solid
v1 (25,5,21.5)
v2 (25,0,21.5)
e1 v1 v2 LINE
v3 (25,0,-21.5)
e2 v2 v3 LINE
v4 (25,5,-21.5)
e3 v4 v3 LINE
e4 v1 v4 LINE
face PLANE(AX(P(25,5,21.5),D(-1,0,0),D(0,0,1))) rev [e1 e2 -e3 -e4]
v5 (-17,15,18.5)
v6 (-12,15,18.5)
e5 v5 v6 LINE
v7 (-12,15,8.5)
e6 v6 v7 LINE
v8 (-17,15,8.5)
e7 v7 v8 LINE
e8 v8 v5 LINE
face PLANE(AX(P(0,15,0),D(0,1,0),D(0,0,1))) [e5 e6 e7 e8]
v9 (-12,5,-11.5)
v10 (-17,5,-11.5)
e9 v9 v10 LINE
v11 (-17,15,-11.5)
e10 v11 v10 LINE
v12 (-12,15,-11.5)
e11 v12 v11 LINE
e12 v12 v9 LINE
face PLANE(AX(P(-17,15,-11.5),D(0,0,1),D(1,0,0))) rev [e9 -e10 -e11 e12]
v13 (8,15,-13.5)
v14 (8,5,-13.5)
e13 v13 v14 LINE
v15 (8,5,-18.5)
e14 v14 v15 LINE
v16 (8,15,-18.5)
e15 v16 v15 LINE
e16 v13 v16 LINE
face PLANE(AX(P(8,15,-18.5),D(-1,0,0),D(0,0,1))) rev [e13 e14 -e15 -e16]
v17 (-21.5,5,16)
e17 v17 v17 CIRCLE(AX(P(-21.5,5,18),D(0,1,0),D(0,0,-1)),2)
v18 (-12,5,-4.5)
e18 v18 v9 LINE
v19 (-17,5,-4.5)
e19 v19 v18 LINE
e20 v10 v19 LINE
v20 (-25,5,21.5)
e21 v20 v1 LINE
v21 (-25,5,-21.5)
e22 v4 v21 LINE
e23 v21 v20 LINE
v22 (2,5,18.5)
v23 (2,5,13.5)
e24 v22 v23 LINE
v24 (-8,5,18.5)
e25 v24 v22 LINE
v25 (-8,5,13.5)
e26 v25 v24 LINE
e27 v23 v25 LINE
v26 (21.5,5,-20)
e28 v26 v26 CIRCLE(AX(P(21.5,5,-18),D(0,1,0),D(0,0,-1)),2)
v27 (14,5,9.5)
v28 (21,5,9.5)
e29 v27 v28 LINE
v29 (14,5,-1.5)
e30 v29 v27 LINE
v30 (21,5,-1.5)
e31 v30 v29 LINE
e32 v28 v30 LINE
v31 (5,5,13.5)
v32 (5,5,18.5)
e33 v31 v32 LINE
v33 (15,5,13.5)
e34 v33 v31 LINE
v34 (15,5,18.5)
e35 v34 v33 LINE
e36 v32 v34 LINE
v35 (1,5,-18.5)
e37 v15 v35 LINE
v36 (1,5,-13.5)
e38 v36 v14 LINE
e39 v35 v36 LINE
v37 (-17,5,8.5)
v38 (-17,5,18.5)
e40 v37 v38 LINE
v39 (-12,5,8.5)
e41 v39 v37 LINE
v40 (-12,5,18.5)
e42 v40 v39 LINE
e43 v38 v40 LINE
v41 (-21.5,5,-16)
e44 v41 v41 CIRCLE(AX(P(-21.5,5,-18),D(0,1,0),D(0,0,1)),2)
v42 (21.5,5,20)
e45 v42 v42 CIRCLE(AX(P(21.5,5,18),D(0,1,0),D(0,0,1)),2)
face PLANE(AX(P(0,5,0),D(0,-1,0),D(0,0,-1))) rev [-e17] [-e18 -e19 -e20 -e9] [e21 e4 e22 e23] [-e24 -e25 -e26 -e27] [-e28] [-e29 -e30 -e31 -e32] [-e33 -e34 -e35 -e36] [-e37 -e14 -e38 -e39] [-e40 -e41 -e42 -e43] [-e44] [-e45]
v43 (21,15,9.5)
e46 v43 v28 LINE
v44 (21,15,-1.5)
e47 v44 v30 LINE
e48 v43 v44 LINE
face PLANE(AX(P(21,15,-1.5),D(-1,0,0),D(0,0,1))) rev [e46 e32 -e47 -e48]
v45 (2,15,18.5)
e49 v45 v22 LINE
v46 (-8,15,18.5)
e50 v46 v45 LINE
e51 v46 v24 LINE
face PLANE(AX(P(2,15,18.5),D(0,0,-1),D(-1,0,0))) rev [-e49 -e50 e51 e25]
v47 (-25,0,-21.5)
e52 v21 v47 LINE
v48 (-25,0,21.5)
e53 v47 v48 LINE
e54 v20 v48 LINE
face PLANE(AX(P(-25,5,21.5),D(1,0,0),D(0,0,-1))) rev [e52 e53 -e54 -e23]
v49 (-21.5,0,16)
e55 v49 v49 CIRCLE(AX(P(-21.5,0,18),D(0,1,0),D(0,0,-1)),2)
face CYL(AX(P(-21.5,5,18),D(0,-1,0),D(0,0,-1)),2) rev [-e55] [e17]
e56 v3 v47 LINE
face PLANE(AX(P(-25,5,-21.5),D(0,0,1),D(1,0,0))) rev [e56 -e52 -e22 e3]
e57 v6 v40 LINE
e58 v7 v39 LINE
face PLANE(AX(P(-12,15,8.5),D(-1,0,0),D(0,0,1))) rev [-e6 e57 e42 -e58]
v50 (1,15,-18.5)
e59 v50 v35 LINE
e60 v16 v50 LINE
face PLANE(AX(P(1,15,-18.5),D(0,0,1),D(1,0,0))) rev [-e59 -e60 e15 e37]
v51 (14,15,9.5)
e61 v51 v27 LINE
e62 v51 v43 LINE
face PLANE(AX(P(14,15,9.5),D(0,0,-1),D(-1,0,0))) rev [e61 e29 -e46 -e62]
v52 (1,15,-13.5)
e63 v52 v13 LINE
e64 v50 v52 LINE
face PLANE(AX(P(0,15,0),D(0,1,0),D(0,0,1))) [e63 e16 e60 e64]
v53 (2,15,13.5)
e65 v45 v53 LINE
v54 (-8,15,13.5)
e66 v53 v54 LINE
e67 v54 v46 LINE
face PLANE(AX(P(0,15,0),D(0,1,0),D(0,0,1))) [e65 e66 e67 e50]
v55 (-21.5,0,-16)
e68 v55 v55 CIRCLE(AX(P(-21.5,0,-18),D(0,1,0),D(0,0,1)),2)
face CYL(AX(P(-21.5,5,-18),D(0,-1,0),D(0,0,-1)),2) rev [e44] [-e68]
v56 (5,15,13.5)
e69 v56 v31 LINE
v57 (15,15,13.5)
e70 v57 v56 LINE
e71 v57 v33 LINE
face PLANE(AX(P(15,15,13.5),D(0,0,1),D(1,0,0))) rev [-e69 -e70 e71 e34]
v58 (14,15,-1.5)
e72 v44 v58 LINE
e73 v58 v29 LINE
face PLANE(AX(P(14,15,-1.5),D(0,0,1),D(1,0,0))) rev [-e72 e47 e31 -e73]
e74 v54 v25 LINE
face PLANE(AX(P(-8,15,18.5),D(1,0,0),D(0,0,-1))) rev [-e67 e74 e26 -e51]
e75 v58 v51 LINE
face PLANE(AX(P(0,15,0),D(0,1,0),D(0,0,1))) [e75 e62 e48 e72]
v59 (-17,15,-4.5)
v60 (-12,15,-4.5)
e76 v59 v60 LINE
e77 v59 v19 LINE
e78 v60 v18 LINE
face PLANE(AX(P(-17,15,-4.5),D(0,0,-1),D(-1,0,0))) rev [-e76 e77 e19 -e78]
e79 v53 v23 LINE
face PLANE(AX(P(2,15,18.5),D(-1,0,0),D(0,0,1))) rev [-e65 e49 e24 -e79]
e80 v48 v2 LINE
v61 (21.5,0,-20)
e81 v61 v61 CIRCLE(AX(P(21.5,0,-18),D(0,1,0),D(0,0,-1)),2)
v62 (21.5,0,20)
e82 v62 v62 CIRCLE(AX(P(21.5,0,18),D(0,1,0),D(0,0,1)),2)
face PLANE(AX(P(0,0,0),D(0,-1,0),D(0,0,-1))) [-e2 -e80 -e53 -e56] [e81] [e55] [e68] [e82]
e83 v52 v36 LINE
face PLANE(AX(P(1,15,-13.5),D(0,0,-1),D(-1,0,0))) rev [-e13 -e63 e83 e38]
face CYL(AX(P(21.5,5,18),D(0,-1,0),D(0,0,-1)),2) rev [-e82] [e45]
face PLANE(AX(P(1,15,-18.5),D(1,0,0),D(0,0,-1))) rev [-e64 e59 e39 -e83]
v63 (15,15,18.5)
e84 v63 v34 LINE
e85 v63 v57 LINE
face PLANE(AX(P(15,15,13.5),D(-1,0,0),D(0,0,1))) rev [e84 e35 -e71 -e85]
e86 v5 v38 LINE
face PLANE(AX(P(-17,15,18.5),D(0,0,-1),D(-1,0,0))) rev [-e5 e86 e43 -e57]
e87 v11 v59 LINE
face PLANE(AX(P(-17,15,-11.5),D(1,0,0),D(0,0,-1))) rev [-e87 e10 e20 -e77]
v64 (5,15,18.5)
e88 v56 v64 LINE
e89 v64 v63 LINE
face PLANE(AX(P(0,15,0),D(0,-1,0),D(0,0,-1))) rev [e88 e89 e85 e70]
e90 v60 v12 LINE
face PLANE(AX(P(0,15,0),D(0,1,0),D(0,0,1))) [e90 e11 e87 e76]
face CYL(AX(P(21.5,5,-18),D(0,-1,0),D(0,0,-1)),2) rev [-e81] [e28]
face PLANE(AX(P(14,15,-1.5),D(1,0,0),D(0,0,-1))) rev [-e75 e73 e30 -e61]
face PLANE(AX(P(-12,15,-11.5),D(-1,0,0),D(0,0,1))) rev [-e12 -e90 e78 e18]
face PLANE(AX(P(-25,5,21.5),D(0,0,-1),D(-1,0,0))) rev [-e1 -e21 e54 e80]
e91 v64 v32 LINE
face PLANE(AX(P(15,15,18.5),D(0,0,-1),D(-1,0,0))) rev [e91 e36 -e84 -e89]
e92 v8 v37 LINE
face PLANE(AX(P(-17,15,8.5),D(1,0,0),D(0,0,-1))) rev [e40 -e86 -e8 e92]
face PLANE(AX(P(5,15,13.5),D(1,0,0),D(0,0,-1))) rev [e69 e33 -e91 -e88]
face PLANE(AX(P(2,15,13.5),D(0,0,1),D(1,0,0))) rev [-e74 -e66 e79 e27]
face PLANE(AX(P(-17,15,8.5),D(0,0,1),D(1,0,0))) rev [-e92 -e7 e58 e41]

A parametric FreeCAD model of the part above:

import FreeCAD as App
import Part
import Sketcher
from FreeCAD import Vector
Q = App.Units.Quantity


def add_polygon(sketch, points):
    """Adds a closed chain of lines whose ends are joined by coincident constraints."""
    first, n = sketch.GeometryCount, len(points)
    for a, b in zip(points, points[1:] + points[:1]):
        sketch.addGeometry(Part.LineSegment(App.Vector(*a, 0), App.Vector(*b, 0)), False)
    for i in range(n):
        sketch.addConstraint(Sketcher.Constraint("Coincident", first + i, 2, first + (i + 1) % n, 1))

doc = App.newDocument("Part")
params = doc.addObject("Spreadsheet::Sheet", "Params")
for row, (alias, value) in enumerate([
    ("sketch1_diameter", "4 mm"),
    ("sketch1_width", "50 mm"),
    ("sketch1_height", "43 mm"),
    ("pad1_length", "5 mm"),
    ("sketch2_width", "5 mm"),
    ("sketch2_width2", "7 mm"),
    ("sketch2_width3", "10 mm"),
    ("sketch2_height", "11 mm"),
    ("pad2_length", "15 mm"),
], start=1):
    params.set(f"A{row}", alias)
    params.set(f"B{row}", "=" + value)
    params.setAlias(f"B{row}", alias)

body = doc.addObject("PartDesign::Body", "Body")

# Sketch on XZ plane
sketch1 = body.newObject("Sketcher::SketchObject", "Sketch")
sketch1.AttachmentSupport = (doc.getObject("XZ_Plane"), [""])
sketch1.MapMode = "FlatFace"
add_polygon(sketch1, [(-25, -21.5), (-25, 21.5), (25, 21.5), (25, -21.5)])  # lines 0-3
sketch1.addGeometry(Part.Circle(Vector(-21.5, 18, 0), Vector(0, 0, 1), 2), False)  # 4
sketch1.addGeometry(Part.Circle(Vector(21.5, 18, 0), Vector(0, 0, 1), 2), False)  # 5
sketch1.addGeometry(Part.Circle(Vector(-21.5, -18, 0), Vector(0, 0, 1), 2), False)  # 6
sketch1.addGeometry(Part.Circle(Vector(21.5, -18, 0), Vector(0, 0, 1), 2), False)  # 7
sketch1.addConstraint([
    Sketcher.Constraint("Vertical", 0),
    Sketcher.Constraint("Horizontal", 1),
    Sketcher.Constraint("Vertical", 2),
    Sketcher.Constraint("Horizontal", 3),
    Sketcher.Constraint("Equal", 4, 5),
    Sketcher.Constraint("Equal", 5, 6),
    Sketcher.Constraint("Equal", 6, 7),
    Sketcher.Constraint("Symmetric", 5, 3, 6, 3, -1, 1),
    Sketcher.Constraint("Symmetric", 4, 3, 7, 3, -1, 1),
    Sketcher.Constraint("Symmetric", 0, 2, 2, 2, -1, 1),
    Sketcher.Constraint("Symmetric", 4, 3, 5, 3, -2),
    Sketcher.Constraint("Diameter", 4, Q("4 mm")),
    Sketcher.Constraint("DistanceX", 1, 1, 1, 2, Q("50 mm")),
    Sketcher.Constraint("DistanceY", 0, 1, 0, 2, Q("43 mm")),
    Sketcher.Constraint("DistanceY", -1, 1, 4, 3, Q("18 mm")),
    Sketcher.Constraint("DistanceX", 4, 3, 5, 3, Q("43 mm")),
])
sketch1.setExpression("Constraints[15]", "Params.sketch1_diameter")
sketch1.setExpression("Constraints[16]", "Params.sketch1_width")
sketch1.setExpression("Constraints[17]", "Params.sketch1_height")
pad1 = body.newObject("PartDesign::Pad", "Pad")
pad1.Profile = sketch1
pad1.setExpression("Length", "Params.pad1_length")
pad1.Reversed = True

# Sketch on XZ plane
sketch2 = body.newObject("Sketcher::SketchObject", "Sketch001")
sketch2.AttachmentSupport = (doc.getObject("XZ_Plane"), [""])
sketch2.MapMode = "FlatFace"
add_polygon(sketch2, [(-17, 8), (-17, 18), (-12, 18), (-12, 8)])  # lines 0-3
add_polygon(sketch2, [(-17, -12), (-17, -4), (-12, -4), (-12, -12)])  # lines 4-7
add_polygon(sketch2, [(1, -18), (1, -14), (8, -14), (8, -18)])  # lines 8-11
add_polygon(sketch2, [(14, -2), (14, 10), (21, 10), (21, -2)])  # lines 12-15
add_polygon(sketch2, [(5, 14), (5, 18), (15, 18), (15, 14)])  # lines 16-19
add_polygon(sketch2, [(-8, 14), (-8, 18), (2, 18), (2, 14)])  # lines 20-23
sketch2.addConstraint([
    Sketcher.Constraint("Vertical", 0),
    Sketcher.Constraint("Horizontal", 1),
    Sketcher.Constraint("Vertical", 2),
    Sketcher.Constraint("Horizontal", 3),
    Sketcher.Constraint("Vertical", 4),
    Sketcher.Constraint("Horizontal", 5),
    Sketcher.Constraint("Vertical", 6),
    Sketcher.Constraint("Horizontal", 7),
    Sketcher.Constraint("Vertical", 8),
    Sketcher.Constraint("Horizontal", 9),
    Sketcher.Constraint("Vertical", 10),
    Sketcher.Constraint("Horizontal", 11),
    Sketcher.Constraint("Vertical", 12),
    Sketcher.Constraint("Horizontal", 13),
    Sketcher.Constraint("Vertical", 14),
    Sketcher.Constraint("Horizontal", 15),
    Sketcher.Constraint("Vertical", 16),
    Sketcher.Constraint("Horizontal", 17),
    Sketcher.Constraint("Vertical", 18),
    Sketcher.Constraint("Horizontal", 19),
    Sketcher.Constraint("Vertical", 20),
    Sketcher.Constraint("Horizontal", 21),
    Sketcher.Constraint("Vertical", 22),
    Sketcher.Constraint("Horizontal", 23),
    Sketcher.Constraint("Symmetric", 10, 2, 20, 2, -1, 1),
    Sketcher.Constraint("Horizontal", 1, 2, 16, 2),
    Sketcher.Constraint("Horizontal", 17, 2, 20, 2),
    Sketcher.Constraint("Horizontal", 19, 2, 22, 2),
    Sketcher.Constraint("Vertical", 3, 2, 4, 2),
    Sketcher.Constraint("Vertical", 2, 2, 5, 2),
    Sketcher.Constraint("Equal", 11, 13),
    Sketcher.Constraint("Equal", 19, 21),
    Sketcher.Constraint("Equal", 23, 0),
    Sketcher.Constraint("Equal", 15, 4),
    Sketcher.Constraint("Equal", 7, 8),
    Sketcher.Constraint("Equal", 10, 16),
    Sketcher.Constraint("DistanceX", 1, 1, 1, 2, Q("5 mm")),
    Sketcher.Constraint("DistanceX", 9, 1, 9, 2, Q("7 mm")),
    Sketcher.Constraint("DistanceX", 17, 1, 17, 2, Q("10 mm")),
    Sketcher.Constraint("DistanceY", 12, 1, 12, 2, Q("11 mm")),
    Sketcher.Constraint("DistanceX", 0, 2, -1, 1, Q("17 mm")),
    Sketcher.Constraint("DistanceX", -1, 1, 8, 2, Q("1 mm")),
    Sketcher.Constraint("DistanceX", -1, 1, 12, 2, Q("14 mm")),
    Sketcher.Constraint("DistanceX", -1, 1, 16, 2, Q("5 mm")),
    Sketcher.Constraint("DistanceY", 4, 2, 3, 2, Q("13 mm")),
    Sketcher.Constraint("DistanceY", 8, 2, 6, 2, Q("2 mm")),
    Sketcher.Constraint("DistanceY", 9, 2, 12, 2, Q("23 mm")),
])
sketch2.setExpression("Constraints[60]", "Params.sketch2_width")
sketch2.setExpression("Constraints[61]", "Params.sketch2_width2")
sketch2.setExpression("Constraints[62]", "Params.sketch2_width3")
sketch2.setExpression("Constraints[63]", "Params.sketch2_height")
pad2 = body.newObject("PartDesign::Pad", "Pad001")
pad2.Profile = sketch2
pad2.setExpression("Length", "Params.pad2_length")
pad2.Reversed = True

doc.recompute()
